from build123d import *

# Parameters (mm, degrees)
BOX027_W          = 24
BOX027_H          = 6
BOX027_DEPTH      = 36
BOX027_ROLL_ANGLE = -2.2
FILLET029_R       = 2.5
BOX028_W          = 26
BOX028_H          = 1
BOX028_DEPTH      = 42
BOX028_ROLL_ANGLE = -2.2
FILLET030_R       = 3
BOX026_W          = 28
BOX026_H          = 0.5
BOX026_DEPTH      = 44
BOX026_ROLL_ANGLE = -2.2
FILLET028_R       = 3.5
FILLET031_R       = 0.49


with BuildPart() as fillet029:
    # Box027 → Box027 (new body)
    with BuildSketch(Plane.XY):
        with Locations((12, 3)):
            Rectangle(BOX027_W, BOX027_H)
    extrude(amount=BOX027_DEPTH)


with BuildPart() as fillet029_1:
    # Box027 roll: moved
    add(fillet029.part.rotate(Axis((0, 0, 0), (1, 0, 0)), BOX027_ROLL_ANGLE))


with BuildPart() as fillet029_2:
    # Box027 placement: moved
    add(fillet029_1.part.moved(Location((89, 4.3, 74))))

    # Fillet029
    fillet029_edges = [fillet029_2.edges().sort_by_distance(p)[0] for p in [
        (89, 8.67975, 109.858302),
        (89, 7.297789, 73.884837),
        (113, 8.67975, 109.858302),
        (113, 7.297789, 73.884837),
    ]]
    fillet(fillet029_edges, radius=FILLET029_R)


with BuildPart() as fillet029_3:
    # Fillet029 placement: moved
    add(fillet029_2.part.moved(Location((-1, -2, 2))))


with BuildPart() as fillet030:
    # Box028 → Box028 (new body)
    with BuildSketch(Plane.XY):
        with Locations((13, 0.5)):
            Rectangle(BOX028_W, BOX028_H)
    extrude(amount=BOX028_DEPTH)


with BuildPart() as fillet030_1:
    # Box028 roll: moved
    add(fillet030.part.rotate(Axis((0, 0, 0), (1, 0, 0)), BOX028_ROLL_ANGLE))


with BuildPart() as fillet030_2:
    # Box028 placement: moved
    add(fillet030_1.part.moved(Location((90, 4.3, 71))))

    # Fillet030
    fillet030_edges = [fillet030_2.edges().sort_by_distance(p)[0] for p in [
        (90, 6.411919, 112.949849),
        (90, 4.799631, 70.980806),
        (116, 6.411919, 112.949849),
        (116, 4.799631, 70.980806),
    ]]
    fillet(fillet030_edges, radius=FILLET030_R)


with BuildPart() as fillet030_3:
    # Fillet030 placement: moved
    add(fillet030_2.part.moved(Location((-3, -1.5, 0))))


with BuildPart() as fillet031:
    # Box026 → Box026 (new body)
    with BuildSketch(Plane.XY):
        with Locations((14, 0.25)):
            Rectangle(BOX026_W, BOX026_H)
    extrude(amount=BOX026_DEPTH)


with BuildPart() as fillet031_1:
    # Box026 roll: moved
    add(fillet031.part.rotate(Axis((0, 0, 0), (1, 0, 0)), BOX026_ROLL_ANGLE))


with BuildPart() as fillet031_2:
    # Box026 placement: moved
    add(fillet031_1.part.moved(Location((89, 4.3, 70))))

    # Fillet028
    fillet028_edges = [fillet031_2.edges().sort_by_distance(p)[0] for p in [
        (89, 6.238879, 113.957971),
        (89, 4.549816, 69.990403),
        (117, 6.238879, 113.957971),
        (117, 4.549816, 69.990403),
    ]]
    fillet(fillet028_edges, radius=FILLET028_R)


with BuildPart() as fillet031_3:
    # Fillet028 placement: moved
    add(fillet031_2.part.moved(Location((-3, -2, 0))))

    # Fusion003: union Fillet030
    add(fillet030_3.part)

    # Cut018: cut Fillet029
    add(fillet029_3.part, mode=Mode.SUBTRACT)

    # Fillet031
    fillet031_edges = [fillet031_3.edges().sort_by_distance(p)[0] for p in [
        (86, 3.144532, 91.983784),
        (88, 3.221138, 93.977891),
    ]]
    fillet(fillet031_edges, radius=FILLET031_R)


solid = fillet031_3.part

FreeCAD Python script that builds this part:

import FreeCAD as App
import Part
import Sketcher

V = App.Vector
Q = App.Units.Quantity


def edges_at(feature, points):
    """Names of the edges that pass closest to the given points."""
    edges = feature.Shape.Edges
    near = lambda p: min(range(len(edges)), key=lambda i: edges[i].distToShape(Part.Vertex(*p))[0])
    return sorted({f"Edge{near(p) + 1}" for p in points})


def add_polygon(sketch, points):
    """Adds a closed chain of lines whose ends are joined by coincident constraints."""
    first, n = sketch.GeometryCount, len(points)
    for a, b in zip(points, points[1:] + points[:1]):
        sketch.addGeometry(Part.LineSegment(App.Vector(*a, 0), App.Vector(*b, 0)), False)
    for i in range(n):
        sketch.addConstraint(Sketcher.Constraint("Coincident", first + i, 2, first + (i + 1) % n, 1))

doc = App.newDocument("Part")
body = doc.addObject("PartDesign::Body", "Body")

sketch1 = body.newObject("Sketcher::SketchObject", "Sketch")
sketch1.AttachmentSupport = (doc.getObject("XY_Plane"), [""])
sketch1.MapMode = "FlatFace"
add_polygon(sketch1, [(0, 6), (0, 0), (24, 0), (24, 6)])
sketch1.addConstraint(Sketcher.Constraint("Vertical", 0))
sketch1.addConstraint(Sketcher.Constraint("Horizontal", 1))
sketch1.addConstraint(Sketcher.Constraint("Vertical", 2))
sketch1.addConstraint(Sketcher.Constraint("Horizontal", 3))
sketch1.addConstraint(Sketcher.Constraint("Coincident", 0, 2, -1, 1))
sketch1.addConstraint(Sketcher.Constraint("DistanceX", 1, 1, 1, 2, Q("24 mm")))
sketch1.addConstraint(Sketcher.Constraint("DistanceY", 0, 2, 0, 1, Q("6 mm")))
pad1 = body.newObject("PartDesign::Pad", "Pad")
pad1.Profile = sketch1
pad1.Length = 36
body2 = doc.addObject("PartDesign::Body", "Body001")
doc.recompute()

body.Placement = App.Placement(V(0, 0, 0), App.Rotation(V(1, 0, 0), 357.8))
boolean = body2.newObject("PartDesign::Boolean", "Boolean")
boolean.Type = "Fuse"
boolean.addObjects([body])
body3 = doc.addObject("PartDesign::Body", "Body002")
doc.recompute()

body2.Placement = App.Placement(V(89, 4.3, 74), App.Rotation(V(0, 0, 1), 0))
boolean2 = body3.newObject("PartDesign::Boolean", "Boolean001")
boolean2.Type = "Fuse"
boolean2.addObjects([body2])
doc.recompute()

fillet = body3.newObject("PartDesign::Fillet", "Fillet")
fillet.Base = (boolean2, edges_at(boolean2, [
    (89, 8.68, 109.858),
    (89, 7.298, 73.885),
    (113, 8.68, 109.858),
    (113, 7.298, 73.885),
]))
fillet.Radius = 2.5
body4 = doc.addObject("PartDesign::Body", "Body003")
doc.recompute()

body3.Placement = App.Placement(V(-1, -2, 2), App.Rotation(V(0, 0, 1), 0))
boolean3 = body4.newObject("PartDesign::Boolean", "Boolean002")
boolean3.Type = "Fuse"
boolean3.addObjects([body3])
body5 = doc.addObject("PartDesign::Body", "Body004")

sketch2 = body5.newObject("Sketcher::SketchObject", "Sketch001")
sketch2.AttachmentSupport = (doc.getObject("XY_Plane004"), [""])
sketch2.MapMode = "FlatFace"
add_polygon(sketch2, [(0, 1), (0, 0), (26, 0), (26, 1)])
sketch2.addConstraint(Sketcher.Constraint("Vertical", 0))
sketch2.addConstraint(Sketcher.Constraint("Horizontal", 1))
sketch2.addConstraint(Sketcher.Constraint("Vertical", 2))
sketch2.addConstraint(Sketcher.Constraint("Horizontal", 3))
sketch2.addConstraint(Sketcher.Constraint("Coincident", 0, 2, -1, 1))
sketch2.addConstraint(Sketcher.Constraint("DistanceX", 1, 1, 1, 2, Q("26 mm")))
sketch2.addConstraint(Sketcher.Constraint("DistanceY", 0, 2, 0, 1, Q("1 mm")))
pad2 = body5.newObject("PartDesign::Pad", "Pad001")
pad2.Profile = sketch2
pad2.Length = 42
body6 = doc.addObject("PartDesign::Body", "Body005")
doc.recompute()

body5.Placement = App.Placement(V(0, 0, 0), App.Rotation(V(1, 0, 0), 357.8))
boolean4 = body6.newObject("PartDesign::Boolean", "Boolean003")
boolean4.Type = "Fuse"
boolean4.addObjects([body5])
body7 = doc.addObject("PartDesign::Body", "Body006")
doc.recompute()

body6.Placement = App.Placement(V(90, 4.3, 71), App.Rotation(V(0, 0, 1), 0))
boolean5 = body7.newObject("PartDesign::Boolean", "Boolean004")
boolean5.Type = "Fuse"
boolean5.addObjects([body6])
doc.recompute()

fillet2 = body7.newObject("PartDesign::Fillet", "Fillet001")
fillet2.Base = (boolean5, edges_at(boolean5, [
    (90, 6.412, 112.95),
    (90, 4.8, 70.981),
    (116, 6.412, 112.95),
    (116, 4.8, 70.981),
]))
fillet2.Radius = 3
body8 = doc.addObject("PartDesign::Body", "Body007")
doc.recompute()

body7.Placement = App.Placement(V(-3, -1.5, 0), App.Rotation(V(0, 0, 1), 0))
boolean6 = body8.newObject("PartDesign::Boolean", "Boolean005")
boolean6.Type = "Fuse"
boolean6.addObjects([body7])
body9 = doc.addObject("PartDesign::Body", "Body008")

sketch3 = body9.newObject("Sketcher::SketchObject", "Sketch002")
sketch3.AttachmentSupport = (doc.getObject("XY_Plane008"), [""])
sketch3.MapMode = "FlatFace"
add_polygon(sketch3, [(0, 0.5), (0, 0), (28, 0), (28, 0.5)])
sketch3.addConstraint(Sketcher.Constraint("Vertical", 0))
sketch3.addConstraint(Sketcher.Constraint("Horizontal", 1))
sketch3.addConstraint(Sketcher.Constraint("Vertical", 2))
sketch3.addConstraint(Sketcher.Constraint("Horizontal", 3))
sketch3.addConstraint(Sketcher.Constraint("Coincident", 0, 2, -1, 1))
sketch3.addConstraint(Sketcher.Constraint("DistanceX", 1, 1, 1, 2, Q("28 mm")))
sketch3.addConstraint(Sketcher.Constraint("DistanceY", 0, 2, 0, 1, Q("0.5 mm")))
pad3 = body9.newObject("PartDesign::Pad", "Pad002")
pad3.Profile = sketch3
pad3.Length = 44
body10 = doc.addObject("PartDesign::Body", "Body009")
doc.recompute()

body9.Placement = App.Placement(V(0, 0, 0), App.Rotation(V(1, 0, 0), 357.8))
boolean7 = body10.newObject("PartDesign::Boolean", "Boolean006")
boolean7.Type = "Fuse"
boolean7.addObjects([body9])
body11 = doc.addObject("PartDesign::Body", "Body010")
doc.recompute()

body10.Placement = App.Placement(V(89, 4.3, 70), App.Rotation(V(0, 0, 1), 0))
boolean8 = body11.newObject("PartDesign::Boolean", "Boolean007")
boolean8.Type = "Fuse"
boolean8.addObjects([body10])
doc.recompute()

fillet3 = body11.newObject("PartDesign::Fillet", "Fillet002")
fillet3.Base = (boolean8, edges_at(boolean8, [
    (89, 6.239, 113.958),
    (89, 4.55, 69.99),
    (117, 6.239, 113.958),
    (117, 4.55, 69.99),
]))
fillet3.Radius = 3.5
body12 = doc.addObject("PartDesign::Body", "Body011")
doc.recompute()

body11.Placement = App.Placement(V(-3, -2, 0), App.Rotation(V(0, 0, 1), 0))
boolean9 = body12.newObject("PartDesign::Boolean", "Boolean008")
boolean9.Type = "Fuse"
boolean9.addObjects([body11])
doc.recompute()

boolean10 = body12.newObject("PartDesign::Boolean", "Boolean009")
boolean10.Type = "Fuse"
boolean10.addObjects([body8])
doc.recompute()

boolean11 = body12.newObject("PartDesign::Boolean", "Boolean010")
boolean11.Type = "Cut"
boolean11.addObjects([body4])
doc.recompute()

fillet4 = body12.newObject("PartDesign::Fillet", "Fillet003")
fillet4.Base = (boolean11, edges_at(boolean11, [(86, 3.145, 91.984), (88, 3.221, 93.978)]))
fillet4.Radius = 0.49

doc.recompute()
